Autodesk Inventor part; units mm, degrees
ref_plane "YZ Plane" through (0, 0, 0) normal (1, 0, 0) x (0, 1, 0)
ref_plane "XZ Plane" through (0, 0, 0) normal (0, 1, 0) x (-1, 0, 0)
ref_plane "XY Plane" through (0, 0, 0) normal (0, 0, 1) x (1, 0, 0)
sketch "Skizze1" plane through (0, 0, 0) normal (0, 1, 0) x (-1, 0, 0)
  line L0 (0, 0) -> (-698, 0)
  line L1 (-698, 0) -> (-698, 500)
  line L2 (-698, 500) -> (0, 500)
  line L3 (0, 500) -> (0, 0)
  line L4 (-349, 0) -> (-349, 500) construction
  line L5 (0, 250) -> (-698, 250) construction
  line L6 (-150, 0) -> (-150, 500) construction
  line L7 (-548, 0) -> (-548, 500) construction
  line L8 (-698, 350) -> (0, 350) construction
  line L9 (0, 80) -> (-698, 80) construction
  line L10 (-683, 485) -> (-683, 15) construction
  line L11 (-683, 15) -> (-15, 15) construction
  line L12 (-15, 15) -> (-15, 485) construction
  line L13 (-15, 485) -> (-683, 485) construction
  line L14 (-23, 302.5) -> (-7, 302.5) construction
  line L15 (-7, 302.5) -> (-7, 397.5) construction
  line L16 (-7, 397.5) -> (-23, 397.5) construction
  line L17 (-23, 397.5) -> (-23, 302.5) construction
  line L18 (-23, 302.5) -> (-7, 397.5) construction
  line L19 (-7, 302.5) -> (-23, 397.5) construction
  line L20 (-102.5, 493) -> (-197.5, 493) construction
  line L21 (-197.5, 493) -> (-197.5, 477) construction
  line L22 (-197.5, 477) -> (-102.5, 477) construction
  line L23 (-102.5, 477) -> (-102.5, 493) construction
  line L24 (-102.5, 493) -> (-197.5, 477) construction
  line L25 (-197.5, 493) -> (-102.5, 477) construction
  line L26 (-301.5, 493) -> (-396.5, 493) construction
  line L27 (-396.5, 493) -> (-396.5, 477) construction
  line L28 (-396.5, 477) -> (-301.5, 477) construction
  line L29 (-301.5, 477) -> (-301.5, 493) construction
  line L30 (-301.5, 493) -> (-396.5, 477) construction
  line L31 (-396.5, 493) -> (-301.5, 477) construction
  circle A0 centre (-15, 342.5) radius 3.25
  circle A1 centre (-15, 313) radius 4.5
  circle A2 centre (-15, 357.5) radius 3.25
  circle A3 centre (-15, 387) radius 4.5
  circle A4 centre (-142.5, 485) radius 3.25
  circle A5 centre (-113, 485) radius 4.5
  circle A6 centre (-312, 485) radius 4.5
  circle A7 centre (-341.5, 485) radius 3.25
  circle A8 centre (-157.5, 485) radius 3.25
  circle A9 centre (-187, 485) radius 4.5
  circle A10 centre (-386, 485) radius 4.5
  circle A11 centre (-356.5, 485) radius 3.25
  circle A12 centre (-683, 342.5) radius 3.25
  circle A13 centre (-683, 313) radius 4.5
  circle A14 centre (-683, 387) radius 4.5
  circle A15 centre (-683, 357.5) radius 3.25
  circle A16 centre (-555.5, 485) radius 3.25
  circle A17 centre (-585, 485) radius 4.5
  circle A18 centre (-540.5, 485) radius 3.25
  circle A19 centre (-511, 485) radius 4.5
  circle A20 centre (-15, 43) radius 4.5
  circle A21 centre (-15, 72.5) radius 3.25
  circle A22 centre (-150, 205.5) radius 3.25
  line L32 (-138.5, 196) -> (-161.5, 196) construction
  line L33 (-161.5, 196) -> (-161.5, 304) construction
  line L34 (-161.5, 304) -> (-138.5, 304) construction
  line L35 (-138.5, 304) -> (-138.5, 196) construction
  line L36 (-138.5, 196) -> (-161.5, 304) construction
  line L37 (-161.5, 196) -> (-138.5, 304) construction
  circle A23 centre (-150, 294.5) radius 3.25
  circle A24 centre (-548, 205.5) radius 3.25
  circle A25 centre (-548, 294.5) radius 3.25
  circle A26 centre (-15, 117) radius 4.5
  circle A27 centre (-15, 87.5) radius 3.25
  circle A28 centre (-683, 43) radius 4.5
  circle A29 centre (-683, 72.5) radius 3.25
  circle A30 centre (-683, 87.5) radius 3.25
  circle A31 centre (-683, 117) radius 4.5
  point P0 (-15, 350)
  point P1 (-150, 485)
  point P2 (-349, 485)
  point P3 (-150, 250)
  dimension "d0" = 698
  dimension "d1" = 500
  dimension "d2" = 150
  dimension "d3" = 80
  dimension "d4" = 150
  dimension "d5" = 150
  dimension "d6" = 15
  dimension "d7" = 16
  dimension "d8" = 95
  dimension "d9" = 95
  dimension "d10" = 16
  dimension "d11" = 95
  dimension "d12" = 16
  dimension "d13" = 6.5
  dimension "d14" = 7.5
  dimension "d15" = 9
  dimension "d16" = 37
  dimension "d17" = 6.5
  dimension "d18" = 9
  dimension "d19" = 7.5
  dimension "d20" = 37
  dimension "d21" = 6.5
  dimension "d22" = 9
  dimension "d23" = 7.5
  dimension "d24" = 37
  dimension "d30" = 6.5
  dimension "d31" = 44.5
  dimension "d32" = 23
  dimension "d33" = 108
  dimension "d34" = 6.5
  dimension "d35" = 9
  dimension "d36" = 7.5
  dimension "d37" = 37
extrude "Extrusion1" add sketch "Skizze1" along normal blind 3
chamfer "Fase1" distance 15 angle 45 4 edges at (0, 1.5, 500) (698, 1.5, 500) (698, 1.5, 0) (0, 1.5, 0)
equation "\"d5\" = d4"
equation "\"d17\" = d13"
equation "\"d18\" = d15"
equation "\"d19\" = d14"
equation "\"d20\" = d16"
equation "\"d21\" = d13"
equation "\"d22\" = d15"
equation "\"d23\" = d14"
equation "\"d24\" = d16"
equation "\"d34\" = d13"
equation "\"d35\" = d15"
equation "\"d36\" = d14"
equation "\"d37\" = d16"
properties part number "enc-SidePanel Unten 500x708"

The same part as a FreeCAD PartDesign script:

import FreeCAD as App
import Part
import Sketcher
from FreeCAD import Vector
Q = App.Units.Quantity


def edges_at(feature, points):
    """Names of the edges that pass closest to the given points."""
    edges = feature.Shape.Edges
    near = lambda p: min(range(len(edges)), key=lambda i: edges[i].distToShape(Part.Vertex(*p))[0])
    return sorted({f"Edge{near(p) + 1}" for p in points})

doc = App.newDocument("Part")
params = doc.addObject("Spreadsheet::Sheet", "Params")
for row, (alias, value) in enumerate([
    ("sketch1_diameter", "9 mm"),
    ("sketch1_diameter2", "6.5 mm"),
    ("sketch1_width", "698 mm"),
    ("sketch1_height", "500 mm"),
    ("pad1_length", "3 mm"),
    ("chamfer_size", "15 mm"),
], start=1):
    params.set(f"A{row}", alias)
    params.set(f"B{row}", "=" + value)
    params.setAlias(f"B{row}", alias)

body = doc.addObject("PartDesign::Body", "Body")

# Sketch on XZ plane
sketch1 = doc.addObject("Sketcher::SketchObject", "Sketch")
body.addObject(sketch1)
sketch1.AttachmentSupport = (doc.XZ_Plane, [""])
sketch1.MapMode = "FlatFace"
sketch1.addGeometry(Part.LineSegment(Vector(698, 0, 0), Vector(0, 0, 0)), False)
sketch1.addGeometry(Part.LineSegment(Vector(0, 0, 0), Vector(0, 500, 0)), False)
sketch1.addGeometry(Part.LineSegment(Vector(0, 500, 0), Vector(698, 500, 0)), False)
sketch1.addGeometry(Part.LineSegment(Vector(698, 500, 0), Vector(698, 0, 0)), False)
sketch1.addGeometry(Part.Circle(Vector(683, 43, 0), Vector(0, 0, 1), 4.5), False)
sketch1.addGeometry(Part.Circle(Vector(683, 72.5, 0), Vector(0, 0, 1), 3.2), False)
sketch1.addGeometry(Part.Circle(Vector(683, 87.5, 0), Vector(0, 0, 1), 3.2), False)
sketch1.addGeometry(Part.Circle(Vector(683, 117, 0), Vector(0, 0, 1), 4.5), False)
sketch1.addGeometry(Part.Circle(Vector(548, 205.5, 0), Vector(0, 0, 1), 3.2), False)
sketch1.addGeometry(Part.Circle(Vector(15, 43, 0), Vector(0, 0, 1), 4.5), False)
sketch1.addGeometry(Part.Circle(Vector(15, 72.5, 0), Vector(0, 0, 1), 3.2), False)
sketch1.addGeometry(Part.Circle(Vector(15, 87.5, 0), Vector(0, 0, 1), 3.2), False)
sketch1.addGeometry(Part.Circle(Vector(15, 117, 0), Vector(0, 0, 1), 4.5), False)
sketch1.addGeometry(Part.Circle(Vector(150, 205.5, 0), Vector(0, 0, 1), 3.2), False)
sketch1.addGeometry(Part.Circle(Vector(548, 294.5, 0), Vector(0, 0, 1), 3.2), False)
sketch1.addGeometry(Part.Circle(Vector(683, 313, 0), Vector(0, 0, 1), 4.5), False)
sketch1.addGeometry(Part.Circle(Vector(683, 342.5, 0), Vector(0, 0, 1), 3.2), False)
sketch1.addGeometry(Part.Circle(Vector(683, 357.5, 0), Vector(0, 0, 1), 3.2), False)
sketch1.addGeometry(Part.Circle(Vector(683, 387, 0), Vector(0, 0, 1), 4.5), False)
sketch1.addGeometry(Part.Circle(Vector(585, 485, 0), Vector(0, 0, 1), 4.5), False)
sketch1.addGeometry(Part.Circle(Vector(555.5, 485, 0), Vector(0, 0, 1), 3.2), False)
sketch1.addGeometry(Part.Circle(Vector(540.5, 485, 0), Vector(0, 0, 1), 3.2), False)
sketch1.addGeometry(Part.Circle(Vector(511, 485, 0), Vector(0, 0, 1), 4.5), False)
sketch1.addGeometry(Part.Circle(Vector(386, 485, 0), Vector(0, 0, 1), 4.5), False)
sketch1.addGeometry(Part.Circle(Vector(356.5, 485, 0), Vector(0, 0, 1), 3.2), False)
sketch1.addGeometry(Part.Circle(Vector(150, 294.5, 0), Vector(0, 0, 1), 3.2), False)
sketch1.addGeometry(Part.Circle(Vector(15, 313, 0), Vector(0, 0, 1), 4.5), False)
sketch1.addGeometry(Part.Circle(Vector(15, 342.5, 0), Vector(0, 0, 1), 3.2), False)
sketch1.addGeometry(Part.Circle(Vector(15, 357.5, 0), Vector(0, 0, 1), 3.2), False)
sketch1.addGeometry(Part.Circle(Vector(341.5, 485, 0), Vector(0, 0, 1), 3.2), False)
sketch1.addGeometry(Part.Circle(Vector(312, 485, 0), Vector(0, 0, 1), 4.5), False)
sketch1.addGeometry(Part.Circle(Vector(187, 485, 0), Vector(0, 0, 1), 4.5), False)
sketch1.addGeometry(Part.Circle(Vector(15, 387, 0), Vector(0, 0, 1), 4.5), False)
sketch1.addGeometry(Part.Circle(Vector(157.5, 485, 0), Vector(0, 0, 1), 3.2), False)
sketch1.addGeometry(Part.Circle(Vector(142.5, 485, 0), Vector(0, 0, 1), 3.2), False)
sketch1.addGeometry(Part.Circle(Vector(113, 485, 0), Vector(0, 0, 1), 4.5), False)
sketch1.addConstraint(Sketcher.Constraint("Coincident", 0, 2, 1, 1))
sketch1.addConstraint(Sketcher.Constraint("Coincident", 1, 2, 2, 1))
sketch1.addConstraint(Sketcher.Constraint("Coincident", 2, 2, 3, 1))
sketch1.addConstraint(Sketcher.Constraint("Coincident", 3, 2, 0, 1))
sketch1.addConstraint(Sketcher.Constraint("Horizontal", 0))
sketch1.addConstraint(Sketcher.Constraint("Vertical", 1))
sketch1.addConstraint(Sketcher.Constraint("Horizontal", 2))
sketch1.addConstraint(Sketcher.Constraint("Vertical", 3))
sketch1.addConstraint(Sketcher.Constraint("Coincident", 0, 2, -1, 1))
sketch1.addConstraint(Sketcher.Constraint("Equal", 5, 6))
sketch1.addConstraint(Sketcher.Constraint("Equal", 4, 7))
sketch1.addConstraint(Sketcher.Constraint("Equal", 6, 8))
sketch1.addConstraint(Sketcher.Constraint("Equal", 7, 9))
sketch1.addConstraint(Sketcher.Constraint("Equal", 8, 10))
sketch1.addConstraint(Sketcher.Constraint("Equal", 10, 11))
sketch1.addConstraint(Sketcher.Constraint("Equal", 9, 12))
sketch1.addConstraint(Sketcher.Constraint("Equal", 11, 13))
sketch1.addConstraint(Sketcher.Constraint("Equal", 13, 14))
sketch1.addConstraint(Sketcher.Constraint("Equal", 12, 15))
sketch1.addConstraint(Sketcher.Constraint("Equal", 14, 16))
sketch1.addConstraint(Sketcher.Constraint("Equal", 16, 17))
sketch1.addConstraint(Sketcher.Constraint("Equal", 15, 18))
sketch1.addConstraint(Sketcher.Constraint("Equal", 18, 19))
sketch1.addConstraint(Sketcher.Constraint("Equal", 17, 20))
sketch1.addConstraint(Sketcher.Constraint("Equal", 20, 21))
sketch1.addConstraint(Sketcher.Constraint("Equal", 19, 22))
sketch1.addConstraint(Sketcher.Constraint("Equal", 22, 23))
sketch1.addConstraint(Sketcher.Constraint("Equal", 21, 24))
sketch1.addConstraint(Sketcher.Constraint("Equal", 24, 25))
sketch1.addConstraint(Sketcher.Constraint("Equal", 23, 26))
sketch1.addConstraint(Sketcher.Constraint("Equal", 25, 27))
sketch1.addConstraint(Sketcher.Constraint("Equal", 27, 28))
sketch1.addConstraint(Sketcher.Constraint("Equal", 28, 29))
sketch1.addConstraint(Sketcher.Constraint("Equal", 26, 30))
sketch1.addConstraint(Sketcher.Constraint("Equal", 30, 31))
sketch1.addConstraint(Sketcher.Constraint("Equal", 31, 32))
sketch1.addConstraint(Sketcher.Constraint("Equal", 29, 33))
sketch1.addConstraint(Sketcher.Constraint("Equal", 33, 34))
sketch1.addConstraint(Sketcher.Constraint("Equal", 32, 35))
sketch1.addConstraint(Sketcher.Constraint("Horizontal", 4, 3, 9, 3))
sketch1.addConstraint(Sketcher.Constraint("Horizontal", 5, 3, 10, 3))
sketch1.addConstraint(Sketcher.Constraint("Horizontal", 6, 3, 11, 3))
sketch1.addConstraint(Sketcher.Constraint("Horizontal", 7, 3, 12, 3))
sketch1.addConstraint(Sketcher.Constraint("Horizontal", 8, 3, 13, 3))
sketch1.addConstraint(Sketcher.Constraint("Horizontal", 19, 3, 20, 3))
sketch1.addConstraint(Sketcher.Constraint("Horizontal", 20, 3, 21, 3))
sketch1.addConstraint(Sketcher.Constraint("Horizontal", 21, 3, 22, 3))
sketch1.addConstraint(Sketcher.Constraint("Horizontal", 22, 3, 23, 3))
sketch1.addConstraint(Sketcher.Constraint("Horizontal", 23, 3, 24, 3))
sketch1.addConstraint(Sketcher.Constraint("Horizontal", 14, 3, 25, 3))
sketch1.addConstraint(Sketcher.Constraint("Horizontal", 15, 3, 26, 3))
sketch1.addConstraint(Sketcher.Constraint("Horizontal", 16, 3, 27, 3))
sketch1.addConstraint(Sketcher.Constraint("Horizontal", 17, 3, 28, 3))
sketch1.addConstraint(Sketcher.Constraint("Horizontal", 24, 3, 29, 3))
sketch1.addConstraint(Sketcher.Constraint("Horizontal", 29, 3, 30, 3))
sketch1.addConstraint(Sketcher.Constraint("Horizontal", 30, 3, 31, 3))
sketch1.addConstraint(Sketcher.Constraint("Horizontal", 18, 3, 32, 3))
sketch1.addConstraint(Sketcher.Constraint("Horizontal", 31, 3, 33, 3))
sketch1.addConstraint(Sketcher.Constraint("Horizontal", 33, 3, 34, 3))
sketch1.addConstraint(Sketcher.Constraint("Horizontal", 34, 3, 35, 3))
sketch1.addConstraint(Sketcher.Constraint("Vertical", 4, 3, 5, 3))
sketch1.addConstraint(Sketcher.Constraint("Vertical", 5, 3, 6, 3))
sketch1.addConstraint(Sketcher.Constraint("Vertical", 6, 3, 7, 3))
sketch1.addConstraint(Sketcher.Constraint("Vertical", 9, 3, 10, 3))
sketch1.addConstraint(Sketcher.Constraint("Vertical", 10, 3, 11, 3))
sketch1.addConstraint(Sketcher.Constraint("Vertical", 11, 3, 12, 3))
sketch1.addConstraint(Sketcher.Constraint("Vertical", 8, 3, 14, 3))
sketch1.addConstraint(Sketcher.Constraint("Vertical", 7, 3, 15, 3))
sketch1.addConstraint(Sketcher.Constraint("Vertical", 15, 3, 16, 3))
sketch1.addConstraint(Sketcher.Constraint("Vertical", 16, 3, 17, 3))
sketch1.addConstraint(Sketcher.Constraint("Vertical", 17, 3, 18, 3))
sketch1.addConstraint(Sketcher.Constraint("Vertical", 13, 3, 25, 3))
sketch1.addConstraint(Sketcher.Constraint("Vertical", 12, 3, 26, 3))
sketch1.addConstraint(Sketcher.Constraint("Vertical", 26, 3, 27, 3))
sketch1.addConstraint(Sketcher.Constraint("Vertical", 27, 3, 28, 3))
sketch1.addConstraint(Sketcher.Constraint("Vertical", 28, 3, 32, 3))
sketch1.addConstraint(Sketcher.Constraint("Diameter", 4, Q("9 mm")))
sketch1.addConstraint(Sketcher.Constraint("Diameter", 5, Q("6.5 mm")))
sketch1.addConstraint(Sketcher.Constraint("DistanceX", 0, 2, 0, 1, Q("698 mm")))
sketch1.addConstraint(Sketcher.Constraint("DistanceY", 1, 1, 1, 2, Q("500 mm")))
sketch1.addConstraint(Sketcher.Constraint("DistanceX", -1, 1, 9, 3, Q("15 mm")))
sketch1.addConstraint(Sketcher.Constraint("DistanceX", -1, 1, 13, 3, Q("150 mm")))
sketch1.addConstraint(Sketcher.Constraint("DistanceY", 5, 3, 6, 3, Q("15 mm")))
sketch1.addConstraint(Sketcher.Constraint("DistanceY", 16, 3, 17, 3, Q("15 mm")))
sketch1.addConstraint(Sketcher.Constraint("DistanceX", 14, 3, 19, 3, Q("37 mm")))
sketch1.addConstraint(Sketcher.Constraint("DistanceX", 21, 3, 20, 3, Q("15 mm")))
sketch1.addConstraint(Sketcher.Constraint("DistanceX", 22, 3, 14, 3, Q("37 mm")))
sketch1.addConstraint(Sketcher.Constraint("DistanceX", 29, 3, 24, 3, Q("15 mm")))
sketch1.addConstraint(Sketcher.Constraint("DistanceX", 25, 3, 31, 3, Q("37 mm")))
sketch1.addConstraint(Sketcher.Constraint("DistanceX", 34, 3, 33, 3, Q("15 mm")))
sketch1.addConstraint(Sketcher.Constraint("DistanceY", 35, 3, 1, 2, Q("15 mm")))
sketch1.addConstraint(Sketcher.Constraint("DistanceX", 18, 3, 2, 2, Q("15 mm")))
sketch1.addConstraint(Sketcher.Constraint("DistanceX", 8, 3, 3, 2, Q("150 mm")))
sketch1.addConstraint(Sketcher.Constraint("DistanceY", 4, 3, 6, 3, Q("44.5 mm")))
sketch1.addConstraint(Sketcher.Constraint("DistanceY", 5, 3, 7, 3, Q("44.5 mm")))
sketch1.addConstraint(Sketcher.Constraint("DistanceY", 15, 3, 17, 3, Q("44.5 mm")))
sketch1.addConstraint(Sketcher.Constraint("DistanceY", 16, 3, 18, 3, Q("44.5 mm")))
sketch1.addConstraint(Sketcher.Constraint("DistanceX", 14, 3, 20, 3, Q("7.5 mm")))
sketch1.addConstraint(Sketcher.Constraint("DistanceX", 29, 3, 23, 3, Q("44.5 mm")))
sketch1.addConstraint(Sketcher.Constraint("DistanceX", 30, 3, 24, 3, Q("44.5 mm")))
sketch1.addConstraint(Sketcher.Constraint("DistanceX", 25, 3, 33, 3, Q("7.5 mm")))
sketch1.addConstraint(Sketcher.Constraint("DistanceX", 35, 3, 33, 3, Q("44.5 mm")))
sketch1.addConstraint(Sketcher.Constraint("DistanceY", -1, 1, 4, 3, Q("43 mm")))
sketch1.addConstraint(Sketcher.Constraint("DistanceY", -1, 1, 15, 3, Q("313 mm")))
sketch1.addConstraint(Sketcher.Constraint("DistanceX", -1, 1, 23, 3, Q("386 mm")))
sketch1.addConstraint(Sketcher.Constraint("DistanceY", 6, 3, 8, 3, Q("118 mm")))
sketch1.addConstraint(Sketcher.Constraint("DistanceY", 8, 3, 14, 3, Q("89 mm")))
sketch1.setExpression("Constraints[76]", "Params.sketch1_diameter")
sketch1.setExpression("Constraints[77]", "Params.sketch1_diameter2")
sketch1.setExpression("Constraints[78]", "Params.sketch1_width")
sketch1.setExpression("Constraints[79]", "Params.sketch1_height")
pad1 = doc.addObject("PartDesign::Pad", "Pad")
body.addObject(pad1)
pad1.Profile = sketch1
pad1.setExpression("Length", "Params.pad1_length")
pad1.Reversed = True
doc.recompute()

chamfer = doc.addObject("PartDesign::Chamfer", "Chamfer")
body.addObject(chamfer)
chamfer.Base = (pad1, edges_at(pad1, [
    (0, 1.5, 500),
    (698, 1.5, 500),
    (698, 1.5, 0),
    (0, 1.5, 0),
]))
chamfer.setExpression("Size", "Params.chamfer_size")

doc.recompute()
